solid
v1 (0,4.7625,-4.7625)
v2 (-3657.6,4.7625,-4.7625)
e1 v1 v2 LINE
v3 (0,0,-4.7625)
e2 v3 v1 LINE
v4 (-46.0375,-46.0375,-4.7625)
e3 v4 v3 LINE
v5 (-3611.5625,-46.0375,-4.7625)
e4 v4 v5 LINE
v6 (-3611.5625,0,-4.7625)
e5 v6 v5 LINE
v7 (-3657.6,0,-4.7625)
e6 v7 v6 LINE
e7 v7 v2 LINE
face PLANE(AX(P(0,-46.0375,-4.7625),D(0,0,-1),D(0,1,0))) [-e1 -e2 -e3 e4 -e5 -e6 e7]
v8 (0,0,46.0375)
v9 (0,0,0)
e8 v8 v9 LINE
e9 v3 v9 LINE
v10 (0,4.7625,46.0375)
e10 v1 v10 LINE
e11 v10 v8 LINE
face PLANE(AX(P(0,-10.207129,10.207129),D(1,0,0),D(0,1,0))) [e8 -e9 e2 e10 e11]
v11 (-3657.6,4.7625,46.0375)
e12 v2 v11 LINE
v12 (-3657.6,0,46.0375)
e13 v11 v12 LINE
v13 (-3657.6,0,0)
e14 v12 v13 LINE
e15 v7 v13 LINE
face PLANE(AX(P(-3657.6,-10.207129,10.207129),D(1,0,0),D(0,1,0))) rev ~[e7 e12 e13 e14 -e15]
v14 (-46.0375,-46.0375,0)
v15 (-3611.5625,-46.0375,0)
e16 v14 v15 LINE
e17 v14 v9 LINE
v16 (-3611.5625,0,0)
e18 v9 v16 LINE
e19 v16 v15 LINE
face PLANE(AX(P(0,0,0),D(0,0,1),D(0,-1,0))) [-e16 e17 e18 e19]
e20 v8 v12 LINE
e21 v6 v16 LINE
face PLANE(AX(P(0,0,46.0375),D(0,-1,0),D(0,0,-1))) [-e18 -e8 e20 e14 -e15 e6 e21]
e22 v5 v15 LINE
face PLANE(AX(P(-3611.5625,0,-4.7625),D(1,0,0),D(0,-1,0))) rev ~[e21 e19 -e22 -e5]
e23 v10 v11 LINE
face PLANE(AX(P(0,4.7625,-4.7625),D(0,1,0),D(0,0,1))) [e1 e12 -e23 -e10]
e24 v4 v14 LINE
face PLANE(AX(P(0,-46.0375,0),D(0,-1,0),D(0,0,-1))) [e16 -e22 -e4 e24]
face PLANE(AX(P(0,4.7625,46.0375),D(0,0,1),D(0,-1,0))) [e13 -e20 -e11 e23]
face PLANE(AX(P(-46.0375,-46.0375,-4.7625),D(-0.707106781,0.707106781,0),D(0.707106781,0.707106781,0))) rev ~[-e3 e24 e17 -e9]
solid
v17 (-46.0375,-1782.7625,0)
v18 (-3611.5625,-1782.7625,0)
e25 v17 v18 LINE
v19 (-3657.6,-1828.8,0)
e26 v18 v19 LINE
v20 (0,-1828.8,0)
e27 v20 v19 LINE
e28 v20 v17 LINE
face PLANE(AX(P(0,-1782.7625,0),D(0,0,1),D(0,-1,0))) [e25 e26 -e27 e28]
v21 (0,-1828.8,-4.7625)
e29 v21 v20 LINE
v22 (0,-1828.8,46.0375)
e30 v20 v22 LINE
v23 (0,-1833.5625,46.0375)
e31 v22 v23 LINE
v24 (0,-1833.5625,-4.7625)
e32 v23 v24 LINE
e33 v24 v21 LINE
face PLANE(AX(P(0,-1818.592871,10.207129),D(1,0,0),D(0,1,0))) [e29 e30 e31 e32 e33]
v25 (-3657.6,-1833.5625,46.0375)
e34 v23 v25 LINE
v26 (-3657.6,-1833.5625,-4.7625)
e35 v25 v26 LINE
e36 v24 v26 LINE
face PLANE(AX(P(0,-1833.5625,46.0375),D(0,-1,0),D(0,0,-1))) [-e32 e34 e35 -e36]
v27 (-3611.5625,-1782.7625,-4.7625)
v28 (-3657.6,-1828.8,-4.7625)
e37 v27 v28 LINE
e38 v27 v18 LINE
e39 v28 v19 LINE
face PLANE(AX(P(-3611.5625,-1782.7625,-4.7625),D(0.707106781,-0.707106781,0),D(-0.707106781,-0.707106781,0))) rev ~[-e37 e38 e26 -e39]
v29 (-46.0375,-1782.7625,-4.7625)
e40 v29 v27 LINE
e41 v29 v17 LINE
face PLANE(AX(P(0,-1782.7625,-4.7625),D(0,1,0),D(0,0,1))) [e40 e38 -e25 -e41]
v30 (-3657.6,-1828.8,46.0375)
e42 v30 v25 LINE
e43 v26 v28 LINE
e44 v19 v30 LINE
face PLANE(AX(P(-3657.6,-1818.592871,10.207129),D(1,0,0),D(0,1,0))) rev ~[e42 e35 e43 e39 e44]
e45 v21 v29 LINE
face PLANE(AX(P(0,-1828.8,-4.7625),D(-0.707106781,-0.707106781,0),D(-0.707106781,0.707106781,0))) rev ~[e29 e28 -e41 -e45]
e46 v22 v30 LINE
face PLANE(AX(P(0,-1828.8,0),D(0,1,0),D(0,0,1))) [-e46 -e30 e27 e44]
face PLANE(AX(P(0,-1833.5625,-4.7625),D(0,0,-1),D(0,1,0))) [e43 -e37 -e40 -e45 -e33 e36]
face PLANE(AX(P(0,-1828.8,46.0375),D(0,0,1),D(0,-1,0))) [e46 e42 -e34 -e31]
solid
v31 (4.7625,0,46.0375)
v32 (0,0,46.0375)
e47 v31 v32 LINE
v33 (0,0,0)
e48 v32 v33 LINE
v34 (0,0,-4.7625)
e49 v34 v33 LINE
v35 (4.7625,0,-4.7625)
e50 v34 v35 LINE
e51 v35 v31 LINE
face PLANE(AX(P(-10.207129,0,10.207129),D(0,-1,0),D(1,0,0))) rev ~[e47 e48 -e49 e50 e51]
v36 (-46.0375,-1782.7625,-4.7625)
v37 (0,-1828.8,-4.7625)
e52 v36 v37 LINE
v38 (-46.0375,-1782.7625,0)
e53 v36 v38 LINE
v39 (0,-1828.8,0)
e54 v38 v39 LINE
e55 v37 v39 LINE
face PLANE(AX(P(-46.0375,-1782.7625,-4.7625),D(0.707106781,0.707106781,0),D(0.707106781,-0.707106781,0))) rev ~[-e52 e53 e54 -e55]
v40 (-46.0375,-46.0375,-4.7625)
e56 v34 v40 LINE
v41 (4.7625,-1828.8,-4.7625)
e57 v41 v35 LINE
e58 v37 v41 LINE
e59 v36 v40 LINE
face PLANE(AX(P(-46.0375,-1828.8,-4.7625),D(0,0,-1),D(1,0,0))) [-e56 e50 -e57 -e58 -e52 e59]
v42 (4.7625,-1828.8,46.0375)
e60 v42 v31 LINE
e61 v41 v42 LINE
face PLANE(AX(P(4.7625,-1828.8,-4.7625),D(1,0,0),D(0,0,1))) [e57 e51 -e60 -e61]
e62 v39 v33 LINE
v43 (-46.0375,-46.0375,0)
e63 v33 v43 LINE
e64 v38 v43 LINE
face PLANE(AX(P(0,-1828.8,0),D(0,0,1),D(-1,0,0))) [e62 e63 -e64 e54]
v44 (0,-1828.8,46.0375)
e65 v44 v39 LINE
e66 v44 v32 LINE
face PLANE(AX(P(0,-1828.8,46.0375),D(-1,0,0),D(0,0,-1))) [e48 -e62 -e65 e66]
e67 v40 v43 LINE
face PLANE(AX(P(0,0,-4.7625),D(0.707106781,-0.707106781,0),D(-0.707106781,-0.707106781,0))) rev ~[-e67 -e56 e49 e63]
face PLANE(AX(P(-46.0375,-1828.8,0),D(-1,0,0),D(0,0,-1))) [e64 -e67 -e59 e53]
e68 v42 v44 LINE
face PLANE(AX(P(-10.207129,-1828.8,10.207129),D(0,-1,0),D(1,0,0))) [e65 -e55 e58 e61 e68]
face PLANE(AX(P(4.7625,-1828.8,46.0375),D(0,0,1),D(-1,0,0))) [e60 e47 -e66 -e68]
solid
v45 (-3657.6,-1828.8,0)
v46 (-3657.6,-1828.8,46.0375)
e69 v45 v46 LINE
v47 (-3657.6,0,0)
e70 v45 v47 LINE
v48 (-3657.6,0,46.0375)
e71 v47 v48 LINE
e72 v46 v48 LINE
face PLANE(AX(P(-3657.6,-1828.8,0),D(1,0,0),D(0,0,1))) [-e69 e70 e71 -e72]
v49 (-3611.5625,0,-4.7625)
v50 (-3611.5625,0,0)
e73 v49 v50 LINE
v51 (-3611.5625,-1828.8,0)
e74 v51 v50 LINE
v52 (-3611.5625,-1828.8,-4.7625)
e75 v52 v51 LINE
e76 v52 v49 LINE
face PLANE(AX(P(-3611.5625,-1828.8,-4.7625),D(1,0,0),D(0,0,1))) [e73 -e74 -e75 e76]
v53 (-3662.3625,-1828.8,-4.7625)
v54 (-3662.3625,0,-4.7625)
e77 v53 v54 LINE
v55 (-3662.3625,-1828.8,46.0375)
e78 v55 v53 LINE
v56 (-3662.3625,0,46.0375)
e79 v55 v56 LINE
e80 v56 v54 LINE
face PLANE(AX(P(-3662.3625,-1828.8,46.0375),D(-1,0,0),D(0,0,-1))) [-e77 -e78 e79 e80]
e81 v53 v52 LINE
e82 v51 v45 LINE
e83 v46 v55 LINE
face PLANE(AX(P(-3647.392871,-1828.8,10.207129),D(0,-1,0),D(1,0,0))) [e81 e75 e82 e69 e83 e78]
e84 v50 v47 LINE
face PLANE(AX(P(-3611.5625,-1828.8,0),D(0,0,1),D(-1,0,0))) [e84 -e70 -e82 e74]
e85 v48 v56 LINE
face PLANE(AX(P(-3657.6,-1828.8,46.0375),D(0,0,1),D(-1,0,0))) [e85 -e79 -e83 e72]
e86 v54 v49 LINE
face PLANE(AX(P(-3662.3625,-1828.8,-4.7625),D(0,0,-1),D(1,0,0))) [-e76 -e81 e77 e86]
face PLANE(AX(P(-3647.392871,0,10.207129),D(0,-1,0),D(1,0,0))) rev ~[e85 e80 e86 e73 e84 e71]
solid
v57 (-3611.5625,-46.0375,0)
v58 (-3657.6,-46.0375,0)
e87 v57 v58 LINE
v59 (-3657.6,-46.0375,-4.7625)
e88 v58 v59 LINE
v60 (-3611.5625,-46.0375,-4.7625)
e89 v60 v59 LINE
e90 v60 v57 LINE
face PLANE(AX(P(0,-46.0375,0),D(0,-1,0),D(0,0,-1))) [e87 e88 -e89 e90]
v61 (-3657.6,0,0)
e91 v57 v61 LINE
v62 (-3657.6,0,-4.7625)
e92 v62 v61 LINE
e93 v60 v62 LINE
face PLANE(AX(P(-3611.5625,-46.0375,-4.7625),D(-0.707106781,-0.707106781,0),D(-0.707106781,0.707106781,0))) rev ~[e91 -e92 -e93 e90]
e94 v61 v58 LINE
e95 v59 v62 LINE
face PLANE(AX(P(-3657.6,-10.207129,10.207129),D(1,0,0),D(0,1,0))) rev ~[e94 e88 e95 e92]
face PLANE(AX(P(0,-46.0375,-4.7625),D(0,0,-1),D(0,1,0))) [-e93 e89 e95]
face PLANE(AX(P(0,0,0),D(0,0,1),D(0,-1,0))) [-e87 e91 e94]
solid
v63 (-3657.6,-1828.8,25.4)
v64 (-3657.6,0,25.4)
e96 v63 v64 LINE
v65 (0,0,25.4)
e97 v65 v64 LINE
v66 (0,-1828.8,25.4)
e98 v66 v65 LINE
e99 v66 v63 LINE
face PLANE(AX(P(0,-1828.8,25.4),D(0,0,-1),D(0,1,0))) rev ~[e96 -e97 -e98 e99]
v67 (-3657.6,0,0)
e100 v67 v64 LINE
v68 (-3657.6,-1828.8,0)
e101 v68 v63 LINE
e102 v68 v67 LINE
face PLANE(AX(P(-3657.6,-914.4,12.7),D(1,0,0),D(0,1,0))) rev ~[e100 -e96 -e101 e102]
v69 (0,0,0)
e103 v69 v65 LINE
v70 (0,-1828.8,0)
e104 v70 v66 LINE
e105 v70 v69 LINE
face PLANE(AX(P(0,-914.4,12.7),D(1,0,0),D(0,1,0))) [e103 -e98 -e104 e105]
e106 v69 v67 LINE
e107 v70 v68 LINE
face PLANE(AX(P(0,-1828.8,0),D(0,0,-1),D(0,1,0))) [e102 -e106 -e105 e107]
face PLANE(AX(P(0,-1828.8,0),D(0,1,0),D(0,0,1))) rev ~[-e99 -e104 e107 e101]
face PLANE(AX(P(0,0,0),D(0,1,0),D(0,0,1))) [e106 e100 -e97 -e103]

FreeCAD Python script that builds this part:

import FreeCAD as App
import Part
import Sketcher
from FreeCAD import Vector
Q = App.Units.Quantity


def add_polygon(sketch, points):
    """Adds a closed chain of lines whose ends are joined by coincident constraints."""
    first, n = sketch.GeometryCount, len(points)
    for a, b in zip(points, points[1:] + points[:1]):
        sketch.addGeometry(Part.LineSegment(App.Vector(*a, 0), App.Vector(*b, 0)), False)
    for i in range(n):
        sketch.addConstraint(Sketcher.Constraint("Coincident", first + i, 2, first + (i + 1) % n, 1))

doc = App.newDocument("Part")
params = doc.addObject("Spreadsheet::Sheet", "Params")
for row, (alias, value) in enumerate([
    ("sketch1_width", "72 in"),
    ("sketch1_height", "1 in"),
    ("pad1_length", "144 in"),
    ("sketch2_width", "2 in"),
    ("sketch2_width2", "1.8125 in"),
    ("pad2_length", "144 in"),
    ("sketch3_width", "1.8125 in"),
    ("sketch4_width", "2 in"),
    ("sketch4_width2", "1.8125 in"),
    ("pad3_length", "144 in"),
    ("sketch5_width", "1.8125 in"),
    ("sketch6_width", "2 in"),
    ("sketch6_width2", "1.8125 in"),
    ("pad4_length", "72 in"),
    ("sketch7_width", "2 in"),
    ("sketch7_width2", "1.8125 in"),
    ("pad5_length", "72 in"),
    ("sketch8_width", "1.8125 in"),
], start=1):
    params.set(f"A{row}", alias)
    params.set(f"B{row}", "=" + value)
    params.setAlias(f"B{row}", alias)

body = doc.addObject("PartDesign::Body", "Body")

# Sketch on YZ plane
sketch1 = body.newObject("Sketcher::SketchObject", "Sketch")
sketch1.AttachmentSupport = (doc.getObject("YZ_Plane"), [""])
sketch1.MapMode = "FlatFace"
add_polygon(sketch1, [(-1828.8, 25.4), (-1828.8, 0), (0, 0), (0, 25.4)])  # lines 0-3
sketch1.addConstraint(Sketcher.Constraint("Vertical", 0))
sketch1.addConstraint(Sketcher.Constraint("Horizontal", 1))
sketch1.addConstraint(Sketcher.Constraint("Vertical", 2))
sketch1.addConstraint(Sketcher.Constraint("Horizontal", 3))
sketch1.addConstraint(Sketcher.Constraint("Coincident", 1, 2, -1, 1))
sketch1.addConstraint(Sketcher.Constraint("DistanceX", 1, 1, 1, 2, Q("72 in")))
sketch1.addConstraint(Sketcher.Constraint("DistanceY", 0, 2, 0, 1, Q("1 in")))
sketch1.setExpression("Constraints[9]", "Params.sketch1_width")
sketch1.setExpression("Constraints[10]", "Params.sketch1_height")
pad1 = body.newObject("PartDesign::Pad", "Pad")
pad1.Profile = sketch1
pad1.setExpression("Length", "Params.pad1_length")
pad1.Reversed = True
body2 = doc.addObject("PartDesign::Body", "Body001")

# Sketch on YZ plane
sketch2 = body2.newObject("Sketcher::SketchObject", "Sketch001")
sketch2.AttachmentSupport = (doc.getObject("YZ_Plane001"), [""])
sketch2.MapMode = "FlatFace"
add_polygon(sketch2, [(-1782.7625, 0), (-1828.8, 0), (-1828.8, 46.0375), (-1833.5625, 46.0375), (-1833.5625, -4.7625), (-1782.7625, -4.7625)])  # lines 0-5
sketch2.addConstraint(Sketcher.Constraint("Horizontal", 0))
sketch2.addConstraint(Sketcher.Constraint("Vertical", 1))
sketch2.addConstraint(Sketcher.Constraint("Horizontal", 2))
sketch2.addConstraint(Sketcher.Constraint("Vertical", 3))
sketch2.addConstraint(Sketcher.Constraint("Horizontal", 4))
sketch2.addConstraint(Sketcher.Constraint("Vertical", 5))
sketch2.addConstraint(Sketcher.Constraint("PointOnObject", 0, 2, -1))
sketch2.addConstraint(Sketcher.Constraint("Equal", 0, 1))
sketch2.addConstraint(Sketcher.Constraint("Equal", 4, 3))
sketch2.addConstraint(Sketcher.Constraint("DistanceX", 4, 1, 4, 2, Q("2 in")))
sketch2.addConstraint(Sketcher.Constraint("DistanceX", 0, 2, -1, 1, Q("72 in")))
sketch2.addConstraint(Sketcher.Constraint("DistanceX", 0, 2, 0, 1, Q("1.8125 in")))
sketch2.setExpression("Constraints[15]", "Params.sketch2_width")
sketch2.setExpression("Constraints[17]", "Params.sketch2_width2")
pad2 = body2.newObject("PartDesign::Pad", "Pad001")
pad2.Profile = sketch2
pad2.setExpression("Length", "Params.pad2_length")
pad2.Reversed = True

# Sketch on XY plane
sketch3 = body2.newObject("Sketcher::SketchObject", "Sketch002")
sketch3.AttachmentSupport = (doc.getObject("XY_Plane001"), [""])
sketch3.MapMode = "FlatFace"
sketch3.AttachmentOffset = App.Placement(Vector(0, 0, -0.1875 * 25.4), App.Rotation())
add_polygon(sketch3, [(0, -1828.8), (-46.0375, -1782.7625), (0, -1782.7625)])  # lines 0-2
add_polygon(sketch3, [(-3657.6, -1828.8), (-3657.6, -1782.7625), (-3611.5625, -1782.7625)])  # lines 3-5
sketch3.addConstraint(Sketcher.Constraint("Horizontal", 1))
sketch3.addConstraint(Sketcher.Constraint("Vertical", 2))
sketch3.addConstraint(Sketcher.Constraint("Vertical", 3))
sketch3.addConstraint(Sketcher.Constraint("Horizontal", 4))
sketch3.addConstraint(Sketcher.Constraint("PointOnObject", 1, 2, -2))
sketch3.addConstraint(Sketcher.Constraint("Perpendicular", 0, 5))
sketch3.addConstraint(Sketcher.Constraint("Horizontal", 1, 2, 3, 2))
sketch3.addConstraint(Sketcher.Constraint("Horizontal", 2, 2, 5, 2))
sketch3.addConstraint(Sketcher.Constraint("Equal", 1, 4))
sketch3.addConstraint(Sketcher.Constraint("DistanceY", 2, 2, -1, 1, Q("72 in")))
sketch3.addConstraint(Sketcher.Constraint("DistanceX", 3, 2, -1, 1, Q("144 in")))
sketch3.addConstraint(Sketcher.Constraint("DistanceX", 1, 1, 1, 2, Q("1.8125 in")))
sketch3.setExpression("Constraints[17]", "Params.sketch3_width")
pocket1 = body2.newObject("PartDesign::Pocket", "Pocket")
pocket1.Profile = sketch3
pocket1.Type = "ThroughAll"
pocket1.Reversed = True
body3 = doc.addObject("PartDesign::Body", "Body002")
body3.AllowCompound = True

# Sketch on YZ plane
sketch4 = body3.newObject("Sketcher::SketchObject", "Sketch003")
sketch4.AttachmentSupport = (doc.getObject("YZ_Plane002"), [""])
sketch4.MapMode = "FlatFace"
add_polygon(sketch4, [(0, 46.0375), (0, 0), (-46.0375, 0), (-46.0375, -4.7625), (4.7625, -4.7625), (4.7625, 46.0375)])  # lines 0-5
sketch4.addConstraint(Sketcher.Constraint("Vertical", 0))
sketch4.addConstraint(Sketcher.Constraint("Horizontal", 1))
sketch4.addConstraint(Sketcher.Constraint("Vertical", 2))
sketch4.addConstraint(Sketcher.Constraint("Horizontal", 3))
sketch4.addConstraint(Sketcher.Constraint("Vertical", 4))
sketch4.addConstraint(Sketcher.Constraint("Horizontal", 5))
sketch4.addConstraint(Sketcher.Constraint("Coincident", 0, 2, -1, 1))
sketch4.addConstraint(Sketcher.Constraint("Equal", 1, 0))
sketch4.addConstraint(Sketcher.Constraint("Equal", 5, 2))
sketch4.addConstraint(Sketcher.Constraint("DistanceX", 3, 1, 3, 2, Q("2 in")))
sketch4.addConstraint(Sketcher.Constraint("DistanceX", 1, 2, 1, 1, Q("1.8125 in")))
sketch4.setExpression("Constraints[15]", "Params.sketch4_width")
sketch4.setExpression("Constraints[16]", "Params.sketch4_width2")
pad3 = body3.newObject("PartDesign::Pad", "Pad002")
pad3.Profile = sketch4
pad3.setExpression("Length", "Params.pad3_length")
pad3.Reversed = True

# Sketch on XY plane
sketch5 = body3.newObject("Sketcher::SketchObject", "Sketch004")
sketch5.AttachmentSupport = (doc.getObject("XY_Plane002"), [""])
sketch5.MapMode = "FlatFace"
sketch5.AttachmentOffset = App.Placement(Vector(0, 0, -0.1875 * 25.4), App.Rotation())
add_polygon(sketch5, [(-3611.5625, 0), (-3611.5625, -46.0375), (-3657.6, 0)])  # lines 0-2
add_polygon(sketch5, [(-46.0375, -46.0375), (0, 0), (0, -46.0375)])  # lines 3-5
sketch5.addConstraint(Sketcher.Constraint("Vertical", 0))
sketch5.addConstraint(Sketcher.Constraint("Horizontal", 2))
sketch5.addConstraint(Sketcher.Constraint("Vertical", 4))
sketch5.addConstraint(Sketcher.Constraint("Horizontal", 5))
sketch5.addConstraint(Sketcher.Constraint("Coincident", 3, 2, -1, 1))
sketch5.addConstraint(Sketcher.Constraint("PointOnObject", 1, 2, -1))
sketch5.addConstraint(Sketcher.Constraint("Perpendicular", 1, 3))
sketch5.addConstraint(Sketcher.Constraint("Horizontal", 0, 2, 4, 2))
sketch5.addConstraint(Sketcher.Constraint("Equal", 2, 5))
sketch5.addConstraint(Sketcher.Constraint("DistanceX", 1, 2, -1, 1, Q("144 in")))
sketch5.addConstraint(Sketcher.Constraint("DistanceX", 2, 1, 2, 2, Q("1.8125 in")))
sketch5.setExpression("Constraints[16]", "Params.sketch5_width")
pocket2 = body3.newObject("PartDesign::Pocket", "Pocket001")
pocket2.Profile = sketch5
pocket2.Type = "ThroughAll"
pocket2.Reversed = True
body4 = doc.addObject("PartDesign::Body", "Body003")

# Sketch on XZ plane
sketch6 = body4.newObject("Sketcher::SketchObject", "Sketch005")
sketch6.AttachmentSupport = (doc.getObject("XZ_Plane003"), [""])
sketch6.MapMode = "FlatFace"
sketch6.AttachmentOffset = App.Placement(Vector(0, 0, 72 * 25.4), App.Rotation())
add_polygon(sketch6, [(-3611.5625, 0), (-3657.6, 0), (-3657.6, 46.0375), (-3662.3625, 46.0375), (-3662.3625, -4.7625), (-3611.5625, -4.7625)])  # lines 0-5
sketch6.addConstraint(Sketcher.Constraint("Horizontal", 0))
sketch6.addConstraint(Sketcher.Constraint("Vertical", 1))
sketch6.addConstraint(Sketcher.Constraint("Horizontal", 2))
sketch6.addConstraint(Sketcher.Constraint("Vertical", 3))
sketch6.addConstraint(Sketcher.Constraint("Horizontal", 4))
sketch6.addConstraint(Sketcher.Constraint("Vertical", 5))
sketch6.addConstraint(Sketcher.Constraint("PointOnObject", 0, 2, -1))
sketch6.addConstraint(Sketcher.Constraint("Equal", 0, 1))
sketch6.addConstraint(Sketcher.Constraint("Equal", 4, 3))
sketch6.addConstraint(Sketcher.Constraint("DistanceX", 4, 1, 4, 2, Q("2 in")))
sketch6.addConstraint(Sketcher.Constraint("DistanceX", 0, 2, -1, 1, Q("144 in")))
sketch6.addConstraint(Sketcher.Constraint("DistanceX", 0, 2, 0, 1, Q("1.8125 in")))
sketch6.setExpression("Constraints[15]", "Params.sketch6_width")
sketch6.setExpression("Constraints[17]", "Params.sketch6_width2")
pad4 = body4.newObject("PartDesign::Pad", "Pad003")
pad4.Profile = sketch6
pad4.setExpression("Length", "Params.pad4_length")
pad4.Reversed = True
body5 = doc.addObject("PartDesign::Body", "Body004")

# Sketch on XZ plane
sketch7 = body5.newObject("Sketcher::SketchObject", "Sketch006")
sketch7.AttachmentSupport = (doc.getObject("XZ_Plane004"), [""])
sketch7.MapMode = "FlatFace"
sketch7.AttachmentOffset = App.Placement(Vector(0, 0, 72 * 25.4), App.Rotation())
add_polygon(sketch7, [(0, 0), (-46.0375, 0), (-46.0375, -4.7625), (4.7625, -4.7625), (4.7625, 46.0375), (0, 46.0375)])  # lines 0-5
sketch7.addConstraint(Sketcher.Constraint("Horizontal", 0))
sketch7.addConstraint(Sketcher.Constraint("Vertical", 1))
sketch7.addConstraint(Sketcher.Constraint("Horizontal", 2))
sketch7.addConstraint(Sketcher.Constraint("Vertical", 3))
sketch7.addConstraint(Sketcher.Constraint("Horizontal", 4))
sketch7.addConstraint(Sketcher.Constraint("Vertical", 5))
sketch7.addConstraint(Sketcher.Constraint("Coincident", 5, 2, -1, 1))
sketch7.addConstraint(Sketcher.Constraint("Equal", 4, 1))
sketch7.addConstraint(Sketcher.Constraint("Equal", 2, 3))
sketch7.addConstraint(Sketcher.Constraint("DistanceX", 2, 1, 2, 2, Q("2 in")))
sketch7.addConstraint(Sketcher.Constraint("DistanceX", 0, 2, 0, 1, Q("1.8125 in")))
sketch7.setExpression("Constraints[15]", "Params.sketch7_width")
sketch7.setExpression("Constraints[16]", "Params.sketch7_width2")
pad5 = body5.newObject("PartDesign::Pad", "Pad004")
pad5.Profile = sketch7
pad5.setExpression("Length", "Params.pad5_length")
pad5.Reversed = True

# Sketch on XY plane
sketch8 = body5.newObject("Sketcher::SketchObject", "Sketch007")
sketch8.AttachmentSupport = (doc.getObject("XY_Plane004"), [""])
sketch8.MapMode = "FlatFace"
sketch8.AttachmentOffset = App.Placement(Vector(0, 0, -0.1875 * 25.4), App.Rotation())
add_polygon(sketch8, [(-46.0375, -1828.8), (-46.0375, -1782.7625), (0, -1828.8)])  # lines 0-2
add_polygon(sketch8, [(-46.0375, 0), (0, 0), (-46.0375, -46.0375)])  # lines 3-5
sketch8.addConstraint(Sketcher.Constraint("Vertical", 0))
sketch8.addConstraint(Sketcher.Constraint("Horizontal", 2))
sketch8.addConstraint(Sketcher.Constraint("Horizontal", 3))
sketch8.addConstraint(Sketcher.Constraint("Vertical", 5))
sketch8.addConstraint(Sketcher.Constraint("Coincident", 3, 2, -1, 1))
sketch8.addConstraint(Sketcher.Constraint("PointOnObject", 1, 2, -2))
sketch8.addConstraint(Sketcher.Constraint("Perpendicular", 1, 4))
sketch8.addConstraint(Sketcher.Constraint("Vertical", 2, 2, 4, 2))
sketch8.addConstraint(Sketcher.Constraint("Equal", 3, 0))
sketch8.addConstraint(Sketcher.Constraint("DistanceY", 1, 2, -1, 1, Q("72 in")))
sketch8.addConstraint(Sketcher.Constraint("DistanceX", 2, 2, 2, 1, Q("1.8125 in")))
sketch8.setExpression("Constraints[16]", "Params.sketch8_width")
pocket3 = body5.newObject("PartDesign::Pocket", "Pocket002")
pocket3.Profile = sketch8
pocket3.Type = "ThroughAll"
pocket3.Reversed = True

doc.recompute()
